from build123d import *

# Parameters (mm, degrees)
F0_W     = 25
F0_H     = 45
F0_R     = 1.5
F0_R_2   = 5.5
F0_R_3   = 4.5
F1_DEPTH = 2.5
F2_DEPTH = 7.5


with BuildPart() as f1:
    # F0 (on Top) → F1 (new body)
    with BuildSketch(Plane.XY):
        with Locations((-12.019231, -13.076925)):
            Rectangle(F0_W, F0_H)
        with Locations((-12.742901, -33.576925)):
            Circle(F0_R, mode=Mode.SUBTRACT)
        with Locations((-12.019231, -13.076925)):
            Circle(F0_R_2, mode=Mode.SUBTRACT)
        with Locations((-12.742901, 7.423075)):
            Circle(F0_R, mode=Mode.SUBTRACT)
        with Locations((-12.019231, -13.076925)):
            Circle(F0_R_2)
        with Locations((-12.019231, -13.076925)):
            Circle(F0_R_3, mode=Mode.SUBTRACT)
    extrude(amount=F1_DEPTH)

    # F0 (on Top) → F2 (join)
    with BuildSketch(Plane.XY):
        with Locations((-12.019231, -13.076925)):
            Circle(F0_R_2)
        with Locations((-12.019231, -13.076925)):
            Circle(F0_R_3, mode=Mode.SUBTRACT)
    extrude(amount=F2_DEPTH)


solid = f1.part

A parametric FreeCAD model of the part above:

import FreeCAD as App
import Part
import Sketcher
from FreeCAD import Vector
Q = App.Units.Quantity

doc = App.newDocument("Part")
body = doc.addObject("PartDesign::Body", "Body")

# Sketch on XY plane
sketch1 = doc.addObject("Sketcher::SketchObject", "Sketch")
body.addObject(sketch1)
sketch1.AttachmentSupport = (doc.XY_Plane, [""])
sketch1.MapMode = "FlatFace"
sketch1.addGeometry([
    Part.LineSegment(Vector(-24.5, 9.4, 0), Vector(-24.5, -35.6, 0)),  # 0
    Part.LineSegment(Vector(-24.5, -35.6, 0), Vector(0.5, -35.6, 0)),  # 1
    Part.LineSegment(Vector(0.5, -35.6, 0), Vector(0.5, 9.4, 0)),  # 2
    Part.LineSegment(Vector(0.5, 9.4, 0), Vector(-24.5, 9.4, 0)),  # 3
    Part.Circle(Vector(-12.7, -33.6, 0), Vector(0, 0, 1), 1.5),  # 4
    Part.Circle(Vector(-12.7, 7.4, 0), Vector(0, 0, 1), 1.5),  # 5
    Part.Circle(Vector(-12, -13.1, 0), Vector(0, 0, 1), 4.5),  # 6
], False)
sketch1.addConstraint([
    Sketcher.Constraint("Coincident", 0, 2, 1, 1),
    Sketcher.Constraint("Coincident", 1, 2, 2, 1),
    Sketcher.Constraint("Coincident", 2, 2, 3, 1),
    Sketcher.Constraint("Coincident", 3, 2, 0, 1),
    Sketcher.Constraint("Vertical", 0),
    Sketcher.Constraint("Horizontal", 1),
    Sketcher.Constraint("Vertical", 2),
    Sketcher.Constraint("Horizontal", 3),
    Sketcher.Constraint("Equal", 4, 5),
    Sketcher.Constraint("Vertical", 4, 3, 5, 3),
    Sketcher.Constraint("Diameter", 4, Q("3 mm")),
    Sketcher.Constraint("Diameter", 6, Q("9 mm")),
    Sketcher.Constraint("DistanceX", 1, 1, 1, 2, Q("25 mm")),
    Sketcher.Constraint("DistanceY", 0, 2, 0, 1, Q("45 mm")),
    Sketcher.Constraint("DistanceY", 4, 3, 5, 3, Q("41 mm")),
    Sketcher.Constraint("DistanceY", 0, 2, 4, 3, Q("2 mm")),
    Sketcher.Constraint("DistanceY", 6, 3, 5, 3, Q("20.5 mm")),
    Sketcher.Constraint("DistanceX", 0, 2, 6, 3, Q("12.5 mm")),
    Sketcher.Constraint("DistanceX", 4, 3, -1, 1, Q("12.742901 mm")),
    Sketcher.Constraint("DistanceX", 6, 3, -1, 1, Q("12.019231 mm")),
    Sketcher.Constraint("DistanceY", 4, 3, -1, 1, Q("33.576925 mm")),
])
pad1 = doc.addObject("PartDesign::Pad", "Pad")
body.addObject(pad1)
pad1.Profile = sketch1
pad1.Length = 2.5

# Sketch on XY plane
sketch2 = doc.addObject("Sketcher::SketchObject", "Sketch001")
body.addObject(sketch2)
sketch2.AttachmentSupport = (doc.XY_Plane, [""])
sketch2.MapMode = "FlatFace"
sketch2.addGeometry([
    Part.Circle(Vector(-12, -13.1, 0), Vector(0, 0, 1), 5.5),
    Part.Circle(Vector(-12, -13.1, 0), Vector(0, 0, 1), 4.5),
], False)
sketch2.addConstraint([
    Sketcher.Constraint("Coincident", 1, 3, 0, 3),
    Sketcher.Constraint("Diameter", 0, Q("11 mm")),
    Sketcher.Constraint("Diameter", 1, Q("9 mm")),
    Sketcher.Constraint("DistanceX", 0, 3, -1, 1, Q("12.019231 mm")),
    Sketcher.Constraint("DistanceY", 0, 3, -1, 1, Q("13.076925 mm")),
])
pad2 = doc.addObject("PartDesign::Pad", "Pad001")
body.addObject(pad2)
pad2.Profile = sketch2
pad2.Length = 7.5

doc.recompute()
